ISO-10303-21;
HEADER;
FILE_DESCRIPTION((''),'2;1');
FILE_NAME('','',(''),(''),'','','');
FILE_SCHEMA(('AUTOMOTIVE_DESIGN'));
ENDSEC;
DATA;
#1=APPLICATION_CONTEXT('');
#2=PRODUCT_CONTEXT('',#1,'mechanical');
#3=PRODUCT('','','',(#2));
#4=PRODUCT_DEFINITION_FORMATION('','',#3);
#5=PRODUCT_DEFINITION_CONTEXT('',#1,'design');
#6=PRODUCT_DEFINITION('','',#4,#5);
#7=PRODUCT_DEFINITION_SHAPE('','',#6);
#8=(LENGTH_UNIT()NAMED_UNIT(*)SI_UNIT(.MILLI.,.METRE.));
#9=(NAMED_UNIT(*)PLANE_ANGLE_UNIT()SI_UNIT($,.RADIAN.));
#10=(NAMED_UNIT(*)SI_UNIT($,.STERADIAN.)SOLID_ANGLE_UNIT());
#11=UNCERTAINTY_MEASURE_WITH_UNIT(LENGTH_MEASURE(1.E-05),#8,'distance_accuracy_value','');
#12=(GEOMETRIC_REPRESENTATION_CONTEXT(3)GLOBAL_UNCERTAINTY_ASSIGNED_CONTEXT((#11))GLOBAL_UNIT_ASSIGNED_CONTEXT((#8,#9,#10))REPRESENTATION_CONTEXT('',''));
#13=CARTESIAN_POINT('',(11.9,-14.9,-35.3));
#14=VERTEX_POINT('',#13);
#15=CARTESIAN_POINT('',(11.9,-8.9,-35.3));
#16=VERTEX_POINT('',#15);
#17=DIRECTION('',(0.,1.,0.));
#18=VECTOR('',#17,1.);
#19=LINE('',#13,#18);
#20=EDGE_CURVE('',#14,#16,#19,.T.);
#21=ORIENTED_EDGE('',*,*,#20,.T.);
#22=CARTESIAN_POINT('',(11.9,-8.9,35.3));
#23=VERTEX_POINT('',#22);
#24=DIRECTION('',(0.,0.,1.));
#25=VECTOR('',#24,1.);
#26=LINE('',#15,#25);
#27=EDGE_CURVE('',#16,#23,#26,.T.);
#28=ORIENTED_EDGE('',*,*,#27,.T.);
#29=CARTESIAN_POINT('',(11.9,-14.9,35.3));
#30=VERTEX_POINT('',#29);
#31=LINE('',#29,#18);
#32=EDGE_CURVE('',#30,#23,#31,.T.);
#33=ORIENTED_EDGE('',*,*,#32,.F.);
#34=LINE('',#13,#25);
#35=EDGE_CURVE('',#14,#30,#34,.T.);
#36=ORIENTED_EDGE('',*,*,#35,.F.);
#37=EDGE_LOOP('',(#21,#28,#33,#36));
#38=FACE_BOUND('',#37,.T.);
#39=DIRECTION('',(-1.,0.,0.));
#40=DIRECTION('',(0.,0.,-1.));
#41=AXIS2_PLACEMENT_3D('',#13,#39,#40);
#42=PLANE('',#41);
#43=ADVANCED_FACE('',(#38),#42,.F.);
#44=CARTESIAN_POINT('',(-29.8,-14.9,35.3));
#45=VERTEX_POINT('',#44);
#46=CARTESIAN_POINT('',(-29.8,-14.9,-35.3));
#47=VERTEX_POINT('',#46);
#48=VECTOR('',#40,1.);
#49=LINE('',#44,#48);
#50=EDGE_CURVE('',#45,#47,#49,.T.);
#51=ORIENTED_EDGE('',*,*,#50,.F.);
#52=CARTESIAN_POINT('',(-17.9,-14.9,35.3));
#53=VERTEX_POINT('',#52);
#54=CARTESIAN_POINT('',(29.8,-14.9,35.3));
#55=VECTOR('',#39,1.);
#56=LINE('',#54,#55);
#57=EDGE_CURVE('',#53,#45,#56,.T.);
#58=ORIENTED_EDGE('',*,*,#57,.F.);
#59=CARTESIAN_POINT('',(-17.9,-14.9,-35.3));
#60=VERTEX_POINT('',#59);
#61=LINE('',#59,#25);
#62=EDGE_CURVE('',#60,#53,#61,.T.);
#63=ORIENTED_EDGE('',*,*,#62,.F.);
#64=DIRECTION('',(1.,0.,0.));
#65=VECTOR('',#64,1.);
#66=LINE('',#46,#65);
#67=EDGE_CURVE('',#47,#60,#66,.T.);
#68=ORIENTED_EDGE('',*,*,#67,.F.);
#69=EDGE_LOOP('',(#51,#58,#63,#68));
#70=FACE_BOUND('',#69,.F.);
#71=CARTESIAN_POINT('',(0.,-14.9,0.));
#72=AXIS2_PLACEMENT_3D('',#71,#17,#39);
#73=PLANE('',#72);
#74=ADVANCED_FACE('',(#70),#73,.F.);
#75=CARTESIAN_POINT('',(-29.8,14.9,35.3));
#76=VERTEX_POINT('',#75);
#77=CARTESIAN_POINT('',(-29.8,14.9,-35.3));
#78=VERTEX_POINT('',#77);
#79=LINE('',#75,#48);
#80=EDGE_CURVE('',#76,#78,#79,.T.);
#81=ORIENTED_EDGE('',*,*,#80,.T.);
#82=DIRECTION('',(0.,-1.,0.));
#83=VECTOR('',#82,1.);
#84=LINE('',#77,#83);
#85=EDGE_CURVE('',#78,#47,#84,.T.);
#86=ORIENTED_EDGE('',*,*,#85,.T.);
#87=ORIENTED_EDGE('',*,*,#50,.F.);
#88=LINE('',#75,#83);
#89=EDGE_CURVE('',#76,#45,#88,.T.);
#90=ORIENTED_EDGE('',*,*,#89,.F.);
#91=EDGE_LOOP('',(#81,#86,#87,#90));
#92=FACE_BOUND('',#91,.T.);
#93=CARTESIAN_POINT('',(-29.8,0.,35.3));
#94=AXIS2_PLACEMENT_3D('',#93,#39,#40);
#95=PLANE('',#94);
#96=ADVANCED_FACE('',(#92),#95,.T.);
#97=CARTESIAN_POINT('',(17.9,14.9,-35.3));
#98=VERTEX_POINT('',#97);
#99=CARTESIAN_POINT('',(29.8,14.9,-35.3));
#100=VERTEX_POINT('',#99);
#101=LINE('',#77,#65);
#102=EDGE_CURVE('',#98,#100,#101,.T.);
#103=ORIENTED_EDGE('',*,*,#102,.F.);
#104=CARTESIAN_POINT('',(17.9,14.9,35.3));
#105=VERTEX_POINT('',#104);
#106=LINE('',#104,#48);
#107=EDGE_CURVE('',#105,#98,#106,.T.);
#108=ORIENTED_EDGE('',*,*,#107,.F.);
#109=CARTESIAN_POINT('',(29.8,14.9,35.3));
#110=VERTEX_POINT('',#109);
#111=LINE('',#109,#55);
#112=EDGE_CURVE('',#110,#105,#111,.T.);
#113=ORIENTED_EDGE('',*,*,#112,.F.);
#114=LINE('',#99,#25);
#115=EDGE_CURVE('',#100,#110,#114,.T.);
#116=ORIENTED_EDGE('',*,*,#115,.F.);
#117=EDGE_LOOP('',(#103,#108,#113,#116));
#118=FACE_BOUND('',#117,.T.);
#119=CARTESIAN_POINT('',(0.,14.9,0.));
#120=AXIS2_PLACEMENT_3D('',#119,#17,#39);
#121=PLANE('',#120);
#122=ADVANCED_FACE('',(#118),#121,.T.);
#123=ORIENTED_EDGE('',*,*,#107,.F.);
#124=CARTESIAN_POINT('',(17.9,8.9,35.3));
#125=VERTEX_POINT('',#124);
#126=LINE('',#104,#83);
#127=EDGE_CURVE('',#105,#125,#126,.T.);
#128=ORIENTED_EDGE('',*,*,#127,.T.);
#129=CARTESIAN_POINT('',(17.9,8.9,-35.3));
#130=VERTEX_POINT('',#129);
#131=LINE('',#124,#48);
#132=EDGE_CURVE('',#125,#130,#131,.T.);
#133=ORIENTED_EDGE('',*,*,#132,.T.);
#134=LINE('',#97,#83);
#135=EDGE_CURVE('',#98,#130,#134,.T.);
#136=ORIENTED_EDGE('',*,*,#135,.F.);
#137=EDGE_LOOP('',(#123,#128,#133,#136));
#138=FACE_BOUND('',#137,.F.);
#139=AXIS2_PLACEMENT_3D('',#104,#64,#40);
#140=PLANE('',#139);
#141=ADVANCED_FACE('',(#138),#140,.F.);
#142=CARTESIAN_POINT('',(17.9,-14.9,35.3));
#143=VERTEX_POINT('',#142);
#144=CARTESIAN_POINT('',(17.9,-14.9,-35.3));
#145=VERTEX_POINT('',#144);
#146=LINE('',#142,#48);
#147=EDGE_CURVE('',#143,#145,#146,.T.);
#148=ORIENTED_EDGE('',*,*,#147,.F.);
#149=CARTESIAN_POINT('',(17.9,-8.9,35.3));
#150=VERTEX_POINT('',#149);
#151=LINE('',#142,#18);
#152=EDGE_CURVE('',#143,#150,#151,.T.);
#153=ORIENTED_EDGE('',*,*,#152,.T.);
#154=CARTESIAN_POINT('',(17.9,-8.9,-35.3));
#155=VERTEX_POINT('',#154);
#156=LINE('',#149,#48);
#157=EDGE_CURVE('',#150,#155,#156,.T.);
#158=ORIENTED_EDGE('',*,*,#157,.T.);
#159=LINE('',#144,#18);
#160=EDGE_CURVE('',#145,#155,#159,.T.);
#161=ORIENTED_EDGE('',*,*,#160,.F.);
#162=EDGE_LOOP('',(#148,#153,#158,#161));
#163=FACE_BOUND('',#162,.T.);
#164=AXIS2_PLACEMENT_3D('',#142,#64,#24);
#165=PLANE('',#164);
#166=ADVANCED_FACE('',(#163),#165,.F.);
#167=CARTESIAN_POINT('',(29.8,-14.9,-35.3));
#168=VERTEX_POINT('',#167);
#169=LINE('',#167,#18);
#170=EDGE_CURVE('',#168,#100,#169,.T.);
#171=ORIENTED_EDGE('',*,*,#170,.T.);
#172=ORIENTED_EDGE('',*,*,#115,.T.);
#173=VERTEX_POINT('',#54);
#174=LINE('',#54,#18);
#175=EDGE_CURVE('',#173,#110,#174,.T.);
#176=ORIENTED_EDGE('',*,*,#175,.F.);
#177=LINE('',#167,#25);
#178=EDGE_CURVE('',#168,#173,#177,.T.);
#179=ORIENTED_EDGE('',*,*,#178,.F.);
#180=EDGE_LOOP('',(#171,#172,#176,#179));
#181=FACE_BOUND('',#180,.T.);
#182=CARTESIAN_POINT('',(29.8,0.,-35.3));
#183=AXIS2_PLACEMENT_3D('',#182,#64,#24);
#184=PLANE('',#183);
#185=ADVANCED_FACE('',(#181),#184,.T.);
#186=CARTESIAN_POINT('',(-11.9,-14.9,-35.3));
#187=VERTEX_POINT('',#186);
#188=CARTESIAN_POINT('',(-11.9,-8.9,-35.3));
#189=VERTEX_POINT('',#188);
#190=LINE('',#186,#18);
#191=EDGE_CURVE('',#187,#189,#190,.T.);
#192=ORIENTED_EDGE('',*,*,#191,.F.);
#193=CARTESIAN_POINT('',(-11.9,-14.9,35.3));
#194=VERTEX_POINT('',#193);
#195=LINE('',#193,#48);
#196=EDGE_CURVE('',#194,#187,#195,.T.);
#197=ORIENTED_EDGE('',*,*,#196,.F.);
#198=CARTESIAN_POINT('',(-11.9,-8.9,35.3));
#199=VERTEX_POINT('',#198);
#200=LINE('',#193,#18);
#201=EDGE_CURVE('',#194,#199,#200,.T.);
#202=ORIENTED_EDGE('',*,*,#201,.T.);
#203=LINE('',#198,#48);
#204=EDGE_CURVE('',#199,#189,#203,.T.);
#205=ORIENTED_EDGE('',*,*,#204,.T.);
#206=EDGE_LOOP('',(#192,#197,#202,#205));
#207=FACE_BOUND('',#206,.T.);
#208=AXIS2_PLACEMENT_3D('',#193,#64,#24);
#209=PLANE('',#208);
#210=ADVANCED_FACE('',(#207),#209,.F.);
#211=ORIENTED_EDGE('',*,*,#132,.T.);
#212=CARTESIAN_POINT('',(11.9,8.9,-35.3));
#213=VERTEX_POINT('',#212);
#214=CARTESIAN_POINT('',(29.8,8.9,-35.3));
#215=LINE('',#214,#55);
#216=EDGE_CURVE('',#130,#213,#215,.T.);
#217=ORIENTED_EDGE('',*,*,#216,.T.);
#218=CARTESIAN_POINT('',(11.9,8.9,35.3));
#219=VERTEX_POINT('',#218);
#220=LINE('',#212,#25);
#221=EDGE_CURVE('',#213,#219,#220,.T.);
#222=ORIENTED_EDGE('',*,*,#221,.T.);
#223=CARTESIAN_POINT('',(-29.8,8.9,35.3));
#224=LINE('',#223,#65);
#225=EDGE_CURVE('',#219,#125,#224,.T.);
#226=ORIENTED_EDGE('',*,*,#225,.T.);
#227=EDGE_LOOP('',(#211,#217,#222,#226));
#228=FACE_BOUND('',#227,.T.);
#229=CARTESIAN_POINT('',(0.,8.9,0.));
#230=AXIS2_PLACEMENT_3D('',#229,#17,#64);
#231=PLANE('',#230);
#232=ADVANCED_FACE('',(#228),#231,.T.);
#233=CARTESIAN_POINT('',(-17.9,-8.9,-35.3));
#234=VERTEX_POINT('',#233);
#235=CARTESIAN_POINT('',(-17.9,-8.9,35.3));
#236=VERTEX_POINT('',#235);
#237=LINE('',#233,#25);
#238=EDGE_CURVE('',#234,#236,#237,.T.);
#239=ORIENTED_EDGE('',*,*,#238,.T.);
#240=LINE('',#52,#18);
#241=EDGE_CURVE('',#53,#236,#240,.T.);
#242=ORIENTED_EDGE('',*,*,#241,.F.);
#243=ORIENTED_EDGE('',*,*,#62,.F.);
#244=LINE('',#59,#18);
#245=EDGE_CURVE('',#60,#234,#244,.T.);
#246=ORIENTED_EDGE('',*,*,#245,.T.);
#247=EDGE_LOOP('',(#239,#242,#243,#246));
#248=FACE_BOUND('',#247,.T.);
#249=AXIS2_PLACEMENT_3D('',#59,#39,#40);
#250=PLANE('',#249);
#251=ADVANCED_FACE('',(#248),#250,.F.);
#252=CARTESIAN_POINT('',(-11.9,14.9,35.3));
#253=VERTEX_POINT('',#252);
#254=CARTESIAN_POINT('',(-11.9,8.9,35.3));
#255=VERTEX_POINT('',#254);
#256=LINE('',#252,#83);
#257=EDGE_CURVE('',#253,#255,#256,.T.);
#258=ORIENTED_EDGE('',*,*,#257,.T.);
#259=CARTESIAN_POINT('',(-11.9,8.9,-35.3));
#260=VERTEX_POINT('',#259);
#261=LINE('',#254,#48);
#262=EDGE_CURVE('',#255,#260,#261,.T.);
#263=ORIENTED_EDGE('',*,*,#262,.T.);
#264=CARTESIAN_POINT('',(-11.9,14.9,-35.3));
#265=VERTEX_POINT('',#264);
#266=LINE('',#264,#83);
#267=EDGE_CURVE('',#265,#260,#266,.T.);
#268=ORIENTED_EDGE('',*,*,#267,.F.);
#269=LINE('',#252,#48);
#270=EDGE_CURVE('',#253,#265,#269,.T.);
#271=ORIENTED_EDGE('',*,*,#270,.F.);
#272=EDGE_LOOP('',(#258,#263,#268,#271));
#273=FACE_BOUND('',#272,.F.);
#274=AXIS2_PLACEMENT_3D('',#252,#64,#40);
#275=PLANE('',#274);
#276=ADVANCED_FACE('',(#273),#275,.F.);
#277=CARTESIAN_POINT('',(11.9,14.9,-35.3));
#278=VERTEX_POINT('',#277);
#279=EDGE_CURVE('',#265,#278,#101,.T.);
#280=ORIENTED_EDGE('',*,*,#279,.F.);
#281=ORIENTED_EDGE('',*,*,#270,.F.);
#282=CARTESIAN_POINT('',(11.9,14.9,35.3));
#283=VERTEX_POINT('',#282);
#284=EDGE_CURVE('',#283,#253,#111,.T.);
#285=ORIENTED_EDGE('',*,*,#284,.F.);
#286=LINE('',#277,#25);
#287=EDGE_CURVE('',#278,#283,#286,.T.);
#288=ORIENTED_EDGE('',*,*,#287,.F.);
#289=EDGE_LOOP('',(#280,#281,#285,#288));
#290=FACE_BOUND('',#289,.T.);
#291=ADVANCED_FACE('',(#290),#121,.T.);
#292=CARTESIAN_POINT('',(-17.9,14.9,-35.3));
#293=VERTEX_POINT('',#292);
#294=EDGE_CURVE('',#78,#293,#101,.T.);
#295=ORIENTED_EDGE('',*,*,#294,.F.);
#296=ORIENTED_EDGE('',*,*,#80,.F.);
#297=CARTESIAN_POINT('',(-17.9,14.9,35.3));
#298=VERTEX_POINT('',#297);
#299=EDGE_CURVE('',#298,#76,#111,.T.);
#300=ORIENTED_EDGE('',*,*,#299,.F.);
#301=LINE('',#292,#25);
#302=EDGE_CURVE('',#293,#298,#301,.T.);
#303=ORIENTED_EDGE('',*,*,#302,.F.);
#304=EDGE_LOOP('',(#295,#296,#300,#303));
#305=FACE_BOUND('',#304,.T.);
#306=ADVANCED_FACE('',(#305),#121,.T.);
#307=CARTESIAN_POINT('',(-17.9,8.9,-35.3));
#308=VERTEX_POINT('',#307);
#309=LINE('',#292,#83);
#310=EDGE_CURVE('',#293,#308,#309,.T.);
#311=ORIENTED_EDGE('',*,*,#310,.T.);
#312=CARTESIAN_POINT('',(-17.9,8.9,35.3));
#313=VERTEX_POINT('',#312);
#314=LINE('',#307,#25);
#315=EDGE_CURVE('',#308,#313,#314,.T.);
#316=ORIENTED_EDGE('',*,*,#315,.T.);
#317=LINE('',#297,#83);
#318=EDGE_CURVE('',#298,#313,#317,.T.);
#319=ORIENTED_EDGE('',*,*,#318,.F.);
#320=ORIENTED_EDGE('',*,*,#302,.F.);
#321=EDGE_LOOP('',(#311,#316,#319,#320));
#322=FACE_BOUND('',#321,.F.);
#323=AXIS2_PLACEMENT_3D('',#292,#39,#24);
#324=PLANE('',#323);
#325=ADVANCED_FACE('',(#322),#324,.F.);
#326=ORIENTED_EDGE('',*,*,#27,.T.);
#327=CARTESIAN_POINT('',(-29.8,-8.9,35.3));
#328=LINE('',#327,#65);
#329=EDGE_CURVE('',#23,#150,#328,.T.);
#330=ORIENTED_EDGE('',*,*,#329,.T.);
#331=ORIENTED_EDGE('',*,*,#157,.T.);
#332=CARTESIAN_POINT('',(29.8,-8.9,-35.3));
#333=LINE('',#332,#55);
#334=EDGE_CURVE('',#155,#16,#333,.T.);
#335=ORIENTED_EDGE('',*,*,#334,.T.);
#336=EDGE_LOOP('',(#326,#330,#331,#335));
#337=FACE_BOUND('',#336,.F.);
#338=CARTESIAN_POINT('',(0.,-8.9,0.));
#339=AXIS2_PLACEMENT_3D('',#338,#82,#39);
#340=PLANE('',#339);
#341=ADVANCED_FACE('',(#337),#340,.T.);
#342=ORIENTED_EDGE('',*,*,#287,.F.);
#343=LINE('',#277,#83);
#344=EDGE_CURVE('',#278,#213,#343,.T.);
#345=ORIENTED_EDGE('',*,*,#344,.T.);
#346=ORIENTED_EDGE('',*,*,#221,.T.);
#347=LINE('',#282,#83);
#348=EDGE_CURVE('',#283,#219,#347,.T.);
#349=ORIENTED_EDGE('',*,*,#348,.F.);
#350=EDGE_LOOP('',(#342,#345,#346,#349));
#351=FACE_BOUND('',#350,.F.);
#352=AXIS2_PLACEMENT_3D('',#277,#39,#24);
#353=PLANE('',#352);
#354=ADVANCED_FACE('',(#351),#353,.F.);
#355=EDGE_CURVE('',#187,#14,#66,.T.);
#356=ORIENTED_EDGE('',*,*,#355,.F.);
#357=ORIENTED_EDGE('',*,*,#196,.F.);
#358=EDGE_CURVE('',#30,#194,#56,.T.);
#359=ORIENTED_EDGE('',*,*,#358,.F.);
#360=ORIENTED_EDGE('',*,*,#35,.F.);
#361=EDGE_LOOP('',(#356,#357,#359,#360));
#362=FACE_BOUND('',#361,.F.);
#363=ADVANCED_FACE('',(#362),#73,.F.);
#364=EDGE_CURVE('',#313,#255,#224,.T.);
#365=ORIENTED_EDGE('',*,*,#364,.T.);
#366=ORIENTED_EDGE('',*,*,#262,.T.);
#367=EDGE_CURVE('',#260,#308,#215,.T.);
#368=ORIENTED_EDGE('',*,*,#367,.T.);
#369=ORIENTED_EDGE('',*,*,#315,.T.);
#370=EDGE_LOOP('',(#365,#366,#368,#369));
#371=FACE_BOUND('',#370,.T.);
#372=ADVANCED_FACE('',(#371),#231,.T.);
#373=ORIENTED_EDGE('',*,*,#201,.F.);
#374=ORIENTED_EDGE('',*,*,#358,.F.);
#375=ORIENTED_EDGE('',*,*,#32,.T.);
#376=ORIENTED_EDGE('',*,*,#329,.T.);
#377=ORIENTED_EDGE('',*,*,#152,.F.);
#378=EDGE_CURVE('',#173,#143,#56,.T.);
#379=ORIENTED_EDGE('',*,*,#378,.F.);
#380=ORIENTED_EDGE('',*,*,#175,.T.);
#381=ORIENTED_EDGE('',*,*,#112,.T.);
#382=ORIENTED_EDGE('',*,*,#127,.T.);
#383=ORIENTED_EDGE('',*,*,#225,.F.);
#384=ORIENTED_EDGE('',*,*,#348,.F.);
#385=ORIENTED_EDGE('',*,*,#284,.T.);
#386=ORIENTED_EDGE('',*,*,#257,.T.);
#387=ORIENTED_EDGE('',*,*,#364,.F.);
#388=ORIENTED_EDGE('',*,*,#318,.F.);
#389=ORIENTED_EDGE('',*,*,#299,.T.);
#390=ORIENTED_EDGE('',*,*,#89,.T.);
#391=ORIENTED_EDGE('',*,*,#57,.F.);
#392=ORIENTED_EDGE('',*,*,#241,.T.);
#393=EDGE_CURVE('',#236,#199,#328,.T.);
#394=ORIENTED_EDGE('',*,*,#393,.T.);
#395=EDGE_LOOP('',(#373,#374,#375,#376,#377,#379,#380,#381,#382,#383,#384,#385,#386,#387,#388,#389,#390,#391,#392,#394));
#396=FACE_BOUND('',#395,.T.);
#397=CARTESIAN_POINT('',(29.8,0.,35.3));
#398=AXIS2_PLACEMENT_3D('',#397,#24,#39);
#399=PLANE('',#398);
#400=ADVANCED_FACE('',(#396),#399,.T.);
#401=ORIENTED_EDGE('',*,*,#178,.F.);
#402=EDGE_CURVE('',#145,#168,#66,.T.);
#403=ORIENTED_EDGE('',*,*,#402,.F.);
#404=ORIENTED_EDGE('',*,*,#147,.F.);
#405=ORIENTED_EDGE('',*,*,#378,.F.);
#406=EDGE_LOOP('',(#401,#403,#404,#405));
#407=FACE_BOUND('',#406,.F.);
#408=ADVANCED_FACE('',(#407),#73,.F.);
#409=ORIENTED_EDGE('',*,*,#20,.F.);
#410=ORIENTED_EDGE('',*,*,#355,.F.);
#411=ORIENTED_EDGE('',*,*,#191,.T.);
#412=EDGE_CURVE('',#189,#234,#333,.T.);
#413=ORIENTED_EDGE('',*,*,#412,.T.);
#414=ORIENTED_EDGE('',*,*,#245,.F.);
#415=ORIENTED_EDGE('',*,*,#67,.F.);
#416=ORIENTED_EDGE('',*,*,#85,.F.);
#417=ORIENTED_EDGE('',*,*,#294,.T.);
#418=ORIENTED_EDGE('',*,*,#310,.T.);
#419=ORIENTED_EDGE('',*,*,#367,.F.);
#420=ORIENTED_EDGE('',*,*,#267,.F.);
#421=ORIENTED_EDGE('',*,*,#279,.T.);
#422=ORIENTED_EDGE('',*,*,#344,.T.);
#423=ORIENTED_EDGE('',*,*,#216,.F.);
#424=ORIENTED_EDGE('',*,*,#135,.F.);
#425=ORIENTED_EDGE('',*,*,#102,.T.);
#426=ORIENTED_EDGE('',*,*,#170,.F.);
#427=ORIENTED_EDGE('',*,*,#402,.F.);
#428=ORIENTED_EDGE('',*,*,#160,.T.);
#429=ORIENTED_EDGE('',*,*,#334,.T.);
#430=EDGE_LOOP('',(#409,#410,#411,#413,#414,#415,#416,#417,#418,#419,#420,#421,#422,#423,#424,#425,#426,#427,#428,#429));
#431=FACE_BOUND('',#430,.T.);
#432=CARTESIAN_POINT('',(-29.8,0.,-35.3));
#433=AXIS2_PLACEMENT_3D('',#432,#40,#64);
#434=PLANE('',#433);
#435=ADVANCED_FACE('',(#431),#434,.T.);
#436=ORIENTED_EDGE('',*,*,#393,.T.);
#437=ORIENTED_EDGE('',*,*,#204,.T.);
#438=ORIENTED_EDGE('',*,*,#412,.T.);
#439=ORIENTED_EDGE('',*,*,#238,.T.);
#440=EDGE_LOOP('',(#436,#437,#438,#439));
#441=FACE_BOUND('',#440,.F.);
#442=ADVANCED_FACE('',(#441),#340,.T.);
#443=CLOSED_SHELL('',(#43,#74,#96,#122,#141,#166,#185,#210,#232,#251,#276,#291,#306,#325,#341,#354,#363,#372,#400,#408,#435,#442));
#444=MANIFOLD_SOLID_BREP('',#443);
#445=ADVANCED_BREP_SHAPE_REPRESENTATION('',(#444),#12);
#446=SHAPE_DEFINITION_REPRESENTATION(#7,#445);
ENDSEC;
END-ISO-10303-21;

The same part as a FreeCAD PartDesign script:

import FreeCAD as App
import Part
import Sketcher
from FreeCAD import Vector
Q = App.Units.Quantity

doc = App.newDocument("Part")
body = doc.addObject("PartDesign::Body", "Body")

sketch1 = doc.addObject("Sketcher::SketchObject", "Sketch")
body.addObject(sketch1)
sketch1.AttachmentSupport = (doc.XZ_Plane, [""])
sketch1.MapMode = "FlatFace"
sketch1.addGeometry([
    Part.LineSegment(Vector(-29.8, 35.3, 0), Vector(29.8, 35.3, 0)),
    Part.LineSegment(Vector(29.8, 35.3, 0), Vector(29.8, -35.3, 0)),
    Part.LineSegment(Vector(29.8, -35.3, 0), Vector(-29.8, -35.3, 0)),
    Part.LineSegment(Vector(-29.8, -35.3, 0), Vector(-29.8, 35.3, 0)),
], False)
sketch1.addConstraint([
    Sketcher.Constraint("Coincident", 0, 2, 1, 1),
    Sketcher.Constraint("Coincident", 1, 2, 2, 1),
    Sketcher.Constraint("Coincident", 2, 2, 3, 1),
    Sketcher.Constraint("Coincident", 3, 2, 0, 1),
    Sketcher.Constraint("Horizontal", 0),
    Sketcher.Constraint("Vertical", 1),
    Sketcher.Constraint("Horizontal", 2),
    Sketcher.Constraint("Vertical", 3),
    Sketcher.Constraint("Symmetric", 0, 2, 2, 2, -1, 1),
    Sketcher.Constraint("DistanceX", 0, 1, 0, 2, Q("59.6 mm")),
    Sketcher.Constraint("DistanceY", 1, 2, 1, 1, Q("70.6 mm")),
])
pad1 = doc.addObject("PartDesign::Pad", "Pad")
body.addObject(pad1)
pad1.Profile = sketch1
pad1.Length = 29.8
pad1.Midplane = True

sketch2 = doc.addObject("Sketcher::SketchObject", "Sketch001")
body.addObject(sketch2)
sketch2.AttachmentSupport = (doc.XZ_Plane, [""])
sketch2.MapMode = "FlatFace"
sketch2.AttachmentOffset = App.Placement(Vector(0, 0, -14.9), App.Rotation())
sketch2.addGeometry([
    Part.LineSegment(Vector(-17.9, -35.3, 0), Vector(-17.9, 35.3, 0)),
    Part.LineSegment(Vector(-17.9, 35.3, 0), Vector(-11.9, 35.3, 0)),
    Part.LineSegment(Vector(-11.9, 35.3, 0), Vector(-11.9, -35.3, 0)),
    Part.LineSegment(Vector(-11.9, -35.3, 0), Vector(-17.9, -35.3, 0)),
    Part.LineSegment(Vector(11.9, -35.3, 0), Vector(11.9, 35.3, 0)),
    Part.LineSegment(Vector(11.9, 35.3, 0), Vector(17.9, 35.3, 0)),
    Part.LineSegment(Vector(17.9, 35.3, 0), Vector(17.9, -35.3, 0)),
    Part.LineSegment(Vector(17.9, -35.3, 0), Vector(11.9, -35.3, 0)),
], False)
sketch2.addConstraint([
    Sketcher.Constraint("Coincident", 0, 2, 1, 1),
    Sketcher.Constraint("Coincident", 1, 2, 2, 1),
    Sketcher.Constraint("Coincident", 2, 2, 3, 1),
    Sketcher.Constraint("Coincident", 3, 2, 0, 1),
    Sketcher.Constraint("Coincident", 4, 2, 5, 1),
    Sketcher.Constraint("Coincident", 5, 2, 6, 1),
    Sketcher.Constraint("Coincident", 6, 2, 7, 1),
    Sketcher.Constraint("Coincident", 7, 2, 4, 1),
    Sketcher.Constraint("Vertical", 0),
    Sketcher.Constraint("Horizontal", 1),
    Sketcher.Constraint("Vertical", 2),
    Sketcher.Constraint("Horizontal", 3),
    Sketcher.Constraint("Vertical", 4),
    Sketcher.Constraint("Horizontal", 5),
    Sketcher.Constraint("Vertical", 6),
    Sketcher.Constraint("Horizontal", 7),
    Sketcher.Constraint("Symmetric", 2, 2, 4, 2, -1, 1),
    Sketcher.Constraint("Symmetric", 0, 2, 6, 2, -1, 1),
    Sketcher.Constraint("Horizontal", 1, 2, 4, 2),
    Sketcher.Constraint("DistanceX", 1, 1, 1, 2, Q("6 mm")),
    Sketcher.Constraint("DistanceX", 1, 2, -1, 1, Q("11.9 mm")),
    Sketcher.Constraint("DistanceY", 0, 1, 0, 2, Q("70.6 mm")),
])
pocket1 = doc.addObject("PartDesign::Pocket", "Pocket")
body.addObject(pocket1)
pocket1.Profile = sketch2
pocket1.Length = 6
pocket1.Reversed = True
doc.recompute()

mirrored = doc.addObject("PartDesign::Mirrored", "Mirrored")
body.addObject(mirrored)
mirrored.Originals = [pocket1]
mirrored.MirrorPlane = (doc.XZ_Plane, [""])
body.Tip = mirrored

doc.recompute()
